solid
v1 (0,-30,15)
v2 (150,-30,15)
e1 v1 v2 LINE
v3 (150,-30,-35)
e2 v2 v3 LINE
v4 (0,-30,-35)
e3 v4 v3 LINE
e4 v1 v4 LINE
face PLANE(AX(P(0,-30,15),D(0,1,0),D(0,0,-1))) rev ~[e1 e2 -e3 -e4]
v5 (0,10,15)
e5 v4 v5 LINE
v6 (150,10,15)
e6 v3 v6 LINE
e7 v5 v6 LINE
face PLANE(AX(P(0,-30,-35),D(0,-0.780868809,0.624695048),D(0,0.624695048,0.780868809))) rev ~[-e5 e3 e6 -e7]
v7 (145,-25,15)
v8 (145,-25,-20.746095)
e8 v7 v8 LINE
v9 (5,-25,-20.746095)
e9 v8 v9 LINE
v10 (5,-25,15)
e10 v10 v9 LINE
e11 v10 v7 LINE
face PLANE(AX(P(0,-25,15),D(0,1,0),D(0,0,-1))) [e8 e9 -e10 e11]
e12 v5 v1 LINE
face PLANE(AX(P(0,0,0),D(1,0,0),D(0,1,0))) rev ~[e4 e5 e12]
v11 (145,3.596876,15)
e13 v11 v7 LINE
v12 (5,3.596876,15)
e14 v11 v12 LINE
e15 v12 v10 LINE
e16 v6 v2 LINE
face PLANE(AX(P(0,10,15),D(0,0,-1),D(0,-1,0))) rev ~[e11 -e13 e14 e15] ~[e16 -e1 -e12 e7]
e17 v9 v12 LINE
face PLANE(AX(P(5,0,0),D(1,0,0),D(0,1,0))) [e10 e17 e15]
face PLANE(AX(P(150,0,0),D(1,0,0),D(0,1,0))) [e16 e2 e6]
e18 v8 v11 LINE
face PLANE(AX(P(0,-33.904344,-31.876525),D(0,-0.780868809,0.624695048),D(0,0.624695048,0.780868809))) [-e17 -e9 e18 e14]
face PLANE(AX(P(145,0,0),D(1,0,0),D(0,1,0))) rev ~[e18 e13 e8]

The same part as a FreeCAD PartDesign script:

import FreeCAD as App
import Part
import Sketcher
Q = App.Units.Quantity


def faces_at(feature, points):
    """Names of the faces that lie closest to the given points."""
    faces = feature.Shape.Faces
    near = lambda p: min(range(len(faces)), key=lambda i: faces[i].distToShape(Part.Vertex(*p))[0])
    return sorted({f"Face{near(p) + 1}" for p in points})

doc = App.newDocument("Part")
body = doc.addObject("PartDesign::Body", "Body")

# Sketch on YZ plane
sketch1 = body.newObject("Sketcher::SketchObject", "Sketch")
sketch1.AttachmentSupport = (doc.getObject("YZ_Plane"), [""])
sketch1.MapMode = "FlatFace"
sketch1.addGeometry(Part.LineSegment(App.Vector(-30, -35, 0), App.Vector(10, 15, 0)), False)
sketch1.addGeometry(Part.LineSegment(App.Vector(10, 15, 0), App.Vector(-30, 15, 0)), False)
sketch1.addGeometry(Part.LineSegment(App.Vector(-30, 15, 0), App.Vector(-30, -35, 0)), False)
sketch1.addConstraint(Sketcher.Constraint("Coincident", 0, 2, 1, 1))
sketch1.addConstraint(Sketcher.Constraint("Coincident", 1, 2, 2, 1))
sketch1.addConstraint(Sketcher.Constraint("Coincident", 2, 2, 0, 1))
sketch1.addConstraint(Sketcher.Constraint("Horizontal", 1))
sketch1.addConstraint(Sketcher.Constraint("Vertical", 2))
sketch1.addConstraint(Sketcher.Constraint("DistanceX", 1, 2, 1, 1, Q("40 mm")))
sketch1.addConstraint(Sketcher.Constraint("DistanceY", 2, 2, 2, 1, Q("50 mm")))
sketch1.addConstraint(Sketcher.Constraint("DistanceX", -1, 1, 0, 2, Q("10 mm")))
sketch1.addConstraint(Sketcher.Constraint("DistanceY", -1, 1, 0, 2, Q("15 mm")))
pad1 = body.newObject("PartDesign::Pad", "Pad")
pad1.Profile = sketch1
pad1.Length = 150
doc.recompute()

thickness = body.newObject("PartDesign::Thickness", "Thickness")
thickness.Base = (pad1, faces_at(pad1, [(50, -3.333, 15)]))
thickness.Value = 5
thickness.Reversed = True
thickness.Join = "Intersection"

doc.recompute()
